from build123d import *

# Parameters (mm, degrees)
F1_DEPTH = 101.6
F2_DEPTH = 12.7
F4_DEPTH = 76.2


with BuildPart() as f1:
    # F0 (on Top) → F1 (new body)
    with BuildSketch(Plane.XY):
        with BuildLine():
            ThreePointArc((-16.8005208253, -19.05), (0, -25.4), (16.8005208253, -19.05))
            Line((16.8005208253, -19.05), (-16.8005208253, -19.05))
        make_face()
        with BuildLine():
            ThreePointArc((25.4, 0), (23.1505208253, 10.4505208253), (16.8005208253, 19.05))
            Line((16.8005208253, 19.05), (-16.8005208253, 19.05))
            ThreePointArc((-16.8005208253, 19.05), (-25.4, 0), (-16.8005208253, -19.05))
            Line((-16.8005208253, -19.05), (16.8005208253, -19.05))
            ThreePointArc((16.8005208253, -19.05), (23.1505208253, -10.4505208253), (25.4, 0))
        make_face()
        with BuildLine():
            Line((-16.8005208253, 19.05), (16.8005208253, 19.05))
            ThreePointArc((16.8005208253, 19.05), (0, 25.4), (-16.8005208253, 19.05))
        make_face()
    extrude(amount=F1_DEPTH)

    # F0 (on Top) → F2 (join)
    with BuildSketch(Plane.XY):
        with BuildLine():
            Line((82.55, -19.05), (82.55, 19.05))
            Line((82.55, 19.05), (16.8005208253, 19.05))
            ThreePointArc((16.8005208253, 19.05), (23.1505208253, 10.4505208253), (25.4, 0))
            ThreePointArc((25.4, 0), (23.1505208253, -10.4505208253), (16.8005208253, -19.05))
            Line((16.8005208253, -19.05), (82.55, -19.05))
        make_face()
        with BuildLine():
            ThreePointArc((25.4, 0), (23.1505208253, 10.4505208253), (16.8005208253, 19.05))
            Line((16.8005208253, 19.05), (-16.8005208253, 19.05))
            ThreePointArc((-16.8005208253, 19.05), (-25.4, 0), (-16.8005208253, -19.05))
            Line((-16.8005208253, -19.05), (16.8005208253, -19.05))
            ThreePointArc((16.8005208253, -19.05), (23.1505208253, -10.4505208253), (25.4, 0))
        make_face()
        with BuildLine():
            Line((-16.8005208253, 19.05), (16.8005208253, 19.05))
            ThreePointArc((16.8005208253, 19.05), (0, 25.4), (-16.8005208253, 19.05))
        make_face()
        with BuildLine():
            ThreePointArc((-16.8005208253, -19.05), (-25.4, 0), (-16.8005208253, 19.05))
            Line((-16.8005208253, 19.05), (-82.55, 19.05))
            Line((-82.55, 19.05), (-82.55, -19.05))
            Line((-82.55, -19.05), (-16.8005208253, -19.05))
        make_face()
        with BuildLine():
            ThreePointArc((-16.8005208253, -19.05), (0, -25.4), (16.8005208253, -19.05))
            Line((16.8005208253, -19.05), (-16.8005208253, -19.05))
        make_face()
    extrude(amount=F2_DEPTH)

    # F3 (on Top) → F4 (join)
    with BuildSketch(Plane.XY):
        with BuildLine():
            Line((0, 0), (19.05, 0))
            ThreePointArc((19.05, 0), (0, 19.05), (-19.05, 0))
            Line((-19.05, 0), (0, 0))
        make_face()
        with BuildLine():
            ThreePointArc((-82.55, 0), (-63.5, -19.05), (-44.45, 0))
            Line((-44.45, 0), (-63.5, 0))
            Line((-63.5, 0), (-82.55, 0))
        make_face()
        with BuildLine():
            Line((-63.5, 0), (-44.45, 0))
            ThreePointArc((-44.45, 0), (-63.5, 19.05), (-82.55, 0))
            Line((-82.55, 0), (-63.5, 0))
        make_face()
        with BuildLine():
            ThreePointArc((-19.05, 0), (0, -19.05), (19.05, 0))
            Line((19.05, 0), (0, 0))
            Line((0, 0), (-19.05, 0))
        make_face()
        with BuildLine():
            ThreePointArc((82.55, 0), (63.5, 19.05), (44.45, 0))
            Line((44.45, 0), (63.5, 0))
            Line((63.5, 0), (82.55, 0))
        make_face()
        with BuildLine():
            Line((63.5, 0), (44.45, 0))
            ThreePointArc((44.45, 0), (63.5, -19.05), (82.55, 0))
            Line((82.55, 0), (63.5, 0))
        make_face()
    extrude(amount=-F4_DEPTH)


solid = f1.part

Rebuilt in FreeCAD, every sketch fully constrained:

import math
import FreeCAD as App
import Part
import Sketcher
from FreeCAD import Vector
Q = App.Units.Quantity

doc = App.newDocument("Part")
body = doc.addObject("PartDesign::Body", "Body")

sketch1 = doc.addObject("Sketcher::SketchObject", "Sketch")
body.addObject(sketch1)
sketch1.AttachmentSupport = (doc.XY_Plane, [""])
sketch1.MapMode = "FlatFace"
sketch1.addGeometry([
    Part.ArcOfCircle(Part.Circle(Vector(0, 0, 0), Vector(0, 0, 1), 25), math.radians(-131), math.radians(-49)),
    Part.ArcOfCircle(Part.Circle(Vector(0, 0, 0), Vector(0, 0, 1), 25), math.radians(-49), math.radians(0)),
    Part.ArcOfCircle(Part.Circle(Vector(0, 0, 0), Vector(0, 0, 1), 25), math.radians(0), math.radians(49)),
    Part.ArcOfCircle(Part.Circle(Vector(0, 0, 0), Vector(0, 0, 1), 25), math.radians(49), math.radians(131)),
    Part.ArcOfCircle(Part.Circle(Vector(0, 0, 0), Vector(0, 0, 1), 25), math.radians(131), math.radians(229)),
], False)
sketch1.addConstraint([
    Sketcher.Constraint("Tangent", 0, 2, 1, 1),
    Sketcher.Constraint("Tangent", 1, 2, 2, 1),
    Sketcher.Constraint("Tangent", 2, 2, 3, 1),
    Sketcher.Constraint("Tangent", 3, 2, 4, 1),
    Sketcher.Constraint("Tangent", 4, 2, 0, 1),
    Sketcher.Constraint("Coincident", 0, 3, -1, 1),
    Sketcher.Constraint("Coincident", 2, 3, -1, 1),
    Sketcher.Constraint("PointOnObject", 1, 2, -1),
    Sketcher.Constraint("Horizontal", 2, 2, 3, 2),
    Sketcher.Constraint("Horizontal", 0, 2, 4, 2),
    Sketcher.Constraint("Vertical", 0, 2, 2, 2),
    Sketcher.Constraint("Radius", 0, Q("1 in")),
    Sketcher.Constraint("DistanceY", 0, 2, -1, 1, Q("0.75 in")),
])
pad1 = doc.addObject("PartDesign::Pad", "Pad")
body.addObject(pad1)
pad1.Profile = sketch1
pad1.Length = Q("4 in")

sketch2 = doc.addObject("Sketcher::SketchObject", "Sketch001")
body.addObject(sketch2)
sketch2.AttachmentSupport = (doc.XY_Plane, [""])
sketch2.MapMode = "FlatFace"
sketch2.addGeometry([
    Part.LineSegment(Vector(83, -19, 0), Vector(83, 19, 0)),
    Part.LineSegment(Vector(83, 19, 0), Vector(17, 19, 0)),
    Part.ArcOfCircle(Part.Circle(Vector(0, 0, 0), Vector(0, 0, 1), 25), math.radians(49), math.radians(131)),
    Part.LineSegment(Vector(-17, 19, 0), Vector(-83, 19, 0)),
    Part.LineSegment(Vector(-83, 19, 0), Vector(-83, -19, 0)),
    Part.LineSegment(Vector(-83, -19, 0), Vector(-17, -19, 0)),
    Part.ArcOfCircle(Part.Circle(Vector(0, 0, 0), Vector(0, 0, 1), 25), math.radians(-131), math.radians(-49)),
    Part.LineSegment(Vector(17, -19, 0), Vector(83, -19, 0)),
], False)
sketch2.addConstraint([
    Sketcher.Constraint("Coincident", 0, 2, 1, 1),
    Sketcher.Constraint("Coincident", 1, 2, 2, 1),
    Sketcher.Constraint("Coincident", 2, 2, 3, 1),
    Sketcher.Constraint("Coincident", 3, 2, 4, 1),
    Sketcher.Constraint("Coincident", 4, 2, 5, 1),
    Sketcher.Constraint("Coincident", 5, 2, 6, 1),
    Sketcher.Constraint("Coincident", 6, 2, 7, 1),
    Sketcher.Constraint("Coincident", 7, 2, 0, 1),
    Sketcher.Constraint("Vertical", 0),
    Sketcher.Constraint("Horizontal", 1),
    Sketcher.Constraint("Horizontal", 3),
    Sketcher.Constraint("Vertical", 4),
    Sketcher.Constraint("Horizontal", 5),
    Sketcher.Constraint("Horizontal", 7),
    Sketcher.Constraint("Coincident", 2, 3, -1, 1),
    Sketcher.Constraint("Coincident", 6, 3, -1, 1),
    Sketcher.Constraint("Equal", 2, 6),
    Sketcher.Constraint("Symmetric", 0, 2, 4, 2, -1, 1),
    Sketcher.Constraint("Horizontal", 1, 2, 2, 2),
    Sketcher.Constraint("Horizontal", 5, 2, 6, 2),
    Sketcher.Constraint("Radius", 2, Q("1 in")),
    Sketcher.Constraint("DistanceY", 0, 1, 0, 2, Q("1.5 in")),
    Sketcher.Constraint("DistanceX", 3, 2, 0, 2, Q("6.5 in")),
])
pad2 = doc.addObject("PartDesign::Pad", "Pad001")
body.addObject(pad2)
pad2.Profile = sketch2
pad2.Length = Q("0.5 in")

sketch3 = doc.addObject("Sketcher::SketchObject", "Sketch002")
body.addObject(sketch3)
sketch3.AttachmentSupport = (doc.XY_Plane, [""])
sketch3.MapMode = "FlatFace"
sketch3.addGeometry([
    Part.Circle(Vector(0, 0, 0), Vector(0, 0, 1), 19),
    Part.Circle(Vector(-64, 0, 0), Vector(0, 0, 1), 19),
    Part.Circle(Vector(64, 0, 0), Vector(0, 0, 1), 19),
], False)
sketch3.addConstraint([
    Sketcher.Constraint("Coincident", 0, 3, -1, 1),
    Sketcher.Constraint("Equal", 0, 1),
    Sketcher.Constraint("Equal", 1, 2),
    Sketcher.Constraint("Symmetric", 1, 3, 2, 3, -1, 1),
    Sketcher.Constraint("PointOnObject", 1, 3, -1),
    Sketcher.Constraint("Diameter", 0, Q("1.5 in")),
    Sketcher.Constraint("DistanceX", 1, 3, 2, 3, Q("5 in")),
])
pad3 = doc.addObject("PartDesign::Pad", "Pad002")
body.addObject(pad3)
pad3.Profile = sketch3
pad3.Length = Q("3 in")
pad3.Reversed = True

doc.recompute()
